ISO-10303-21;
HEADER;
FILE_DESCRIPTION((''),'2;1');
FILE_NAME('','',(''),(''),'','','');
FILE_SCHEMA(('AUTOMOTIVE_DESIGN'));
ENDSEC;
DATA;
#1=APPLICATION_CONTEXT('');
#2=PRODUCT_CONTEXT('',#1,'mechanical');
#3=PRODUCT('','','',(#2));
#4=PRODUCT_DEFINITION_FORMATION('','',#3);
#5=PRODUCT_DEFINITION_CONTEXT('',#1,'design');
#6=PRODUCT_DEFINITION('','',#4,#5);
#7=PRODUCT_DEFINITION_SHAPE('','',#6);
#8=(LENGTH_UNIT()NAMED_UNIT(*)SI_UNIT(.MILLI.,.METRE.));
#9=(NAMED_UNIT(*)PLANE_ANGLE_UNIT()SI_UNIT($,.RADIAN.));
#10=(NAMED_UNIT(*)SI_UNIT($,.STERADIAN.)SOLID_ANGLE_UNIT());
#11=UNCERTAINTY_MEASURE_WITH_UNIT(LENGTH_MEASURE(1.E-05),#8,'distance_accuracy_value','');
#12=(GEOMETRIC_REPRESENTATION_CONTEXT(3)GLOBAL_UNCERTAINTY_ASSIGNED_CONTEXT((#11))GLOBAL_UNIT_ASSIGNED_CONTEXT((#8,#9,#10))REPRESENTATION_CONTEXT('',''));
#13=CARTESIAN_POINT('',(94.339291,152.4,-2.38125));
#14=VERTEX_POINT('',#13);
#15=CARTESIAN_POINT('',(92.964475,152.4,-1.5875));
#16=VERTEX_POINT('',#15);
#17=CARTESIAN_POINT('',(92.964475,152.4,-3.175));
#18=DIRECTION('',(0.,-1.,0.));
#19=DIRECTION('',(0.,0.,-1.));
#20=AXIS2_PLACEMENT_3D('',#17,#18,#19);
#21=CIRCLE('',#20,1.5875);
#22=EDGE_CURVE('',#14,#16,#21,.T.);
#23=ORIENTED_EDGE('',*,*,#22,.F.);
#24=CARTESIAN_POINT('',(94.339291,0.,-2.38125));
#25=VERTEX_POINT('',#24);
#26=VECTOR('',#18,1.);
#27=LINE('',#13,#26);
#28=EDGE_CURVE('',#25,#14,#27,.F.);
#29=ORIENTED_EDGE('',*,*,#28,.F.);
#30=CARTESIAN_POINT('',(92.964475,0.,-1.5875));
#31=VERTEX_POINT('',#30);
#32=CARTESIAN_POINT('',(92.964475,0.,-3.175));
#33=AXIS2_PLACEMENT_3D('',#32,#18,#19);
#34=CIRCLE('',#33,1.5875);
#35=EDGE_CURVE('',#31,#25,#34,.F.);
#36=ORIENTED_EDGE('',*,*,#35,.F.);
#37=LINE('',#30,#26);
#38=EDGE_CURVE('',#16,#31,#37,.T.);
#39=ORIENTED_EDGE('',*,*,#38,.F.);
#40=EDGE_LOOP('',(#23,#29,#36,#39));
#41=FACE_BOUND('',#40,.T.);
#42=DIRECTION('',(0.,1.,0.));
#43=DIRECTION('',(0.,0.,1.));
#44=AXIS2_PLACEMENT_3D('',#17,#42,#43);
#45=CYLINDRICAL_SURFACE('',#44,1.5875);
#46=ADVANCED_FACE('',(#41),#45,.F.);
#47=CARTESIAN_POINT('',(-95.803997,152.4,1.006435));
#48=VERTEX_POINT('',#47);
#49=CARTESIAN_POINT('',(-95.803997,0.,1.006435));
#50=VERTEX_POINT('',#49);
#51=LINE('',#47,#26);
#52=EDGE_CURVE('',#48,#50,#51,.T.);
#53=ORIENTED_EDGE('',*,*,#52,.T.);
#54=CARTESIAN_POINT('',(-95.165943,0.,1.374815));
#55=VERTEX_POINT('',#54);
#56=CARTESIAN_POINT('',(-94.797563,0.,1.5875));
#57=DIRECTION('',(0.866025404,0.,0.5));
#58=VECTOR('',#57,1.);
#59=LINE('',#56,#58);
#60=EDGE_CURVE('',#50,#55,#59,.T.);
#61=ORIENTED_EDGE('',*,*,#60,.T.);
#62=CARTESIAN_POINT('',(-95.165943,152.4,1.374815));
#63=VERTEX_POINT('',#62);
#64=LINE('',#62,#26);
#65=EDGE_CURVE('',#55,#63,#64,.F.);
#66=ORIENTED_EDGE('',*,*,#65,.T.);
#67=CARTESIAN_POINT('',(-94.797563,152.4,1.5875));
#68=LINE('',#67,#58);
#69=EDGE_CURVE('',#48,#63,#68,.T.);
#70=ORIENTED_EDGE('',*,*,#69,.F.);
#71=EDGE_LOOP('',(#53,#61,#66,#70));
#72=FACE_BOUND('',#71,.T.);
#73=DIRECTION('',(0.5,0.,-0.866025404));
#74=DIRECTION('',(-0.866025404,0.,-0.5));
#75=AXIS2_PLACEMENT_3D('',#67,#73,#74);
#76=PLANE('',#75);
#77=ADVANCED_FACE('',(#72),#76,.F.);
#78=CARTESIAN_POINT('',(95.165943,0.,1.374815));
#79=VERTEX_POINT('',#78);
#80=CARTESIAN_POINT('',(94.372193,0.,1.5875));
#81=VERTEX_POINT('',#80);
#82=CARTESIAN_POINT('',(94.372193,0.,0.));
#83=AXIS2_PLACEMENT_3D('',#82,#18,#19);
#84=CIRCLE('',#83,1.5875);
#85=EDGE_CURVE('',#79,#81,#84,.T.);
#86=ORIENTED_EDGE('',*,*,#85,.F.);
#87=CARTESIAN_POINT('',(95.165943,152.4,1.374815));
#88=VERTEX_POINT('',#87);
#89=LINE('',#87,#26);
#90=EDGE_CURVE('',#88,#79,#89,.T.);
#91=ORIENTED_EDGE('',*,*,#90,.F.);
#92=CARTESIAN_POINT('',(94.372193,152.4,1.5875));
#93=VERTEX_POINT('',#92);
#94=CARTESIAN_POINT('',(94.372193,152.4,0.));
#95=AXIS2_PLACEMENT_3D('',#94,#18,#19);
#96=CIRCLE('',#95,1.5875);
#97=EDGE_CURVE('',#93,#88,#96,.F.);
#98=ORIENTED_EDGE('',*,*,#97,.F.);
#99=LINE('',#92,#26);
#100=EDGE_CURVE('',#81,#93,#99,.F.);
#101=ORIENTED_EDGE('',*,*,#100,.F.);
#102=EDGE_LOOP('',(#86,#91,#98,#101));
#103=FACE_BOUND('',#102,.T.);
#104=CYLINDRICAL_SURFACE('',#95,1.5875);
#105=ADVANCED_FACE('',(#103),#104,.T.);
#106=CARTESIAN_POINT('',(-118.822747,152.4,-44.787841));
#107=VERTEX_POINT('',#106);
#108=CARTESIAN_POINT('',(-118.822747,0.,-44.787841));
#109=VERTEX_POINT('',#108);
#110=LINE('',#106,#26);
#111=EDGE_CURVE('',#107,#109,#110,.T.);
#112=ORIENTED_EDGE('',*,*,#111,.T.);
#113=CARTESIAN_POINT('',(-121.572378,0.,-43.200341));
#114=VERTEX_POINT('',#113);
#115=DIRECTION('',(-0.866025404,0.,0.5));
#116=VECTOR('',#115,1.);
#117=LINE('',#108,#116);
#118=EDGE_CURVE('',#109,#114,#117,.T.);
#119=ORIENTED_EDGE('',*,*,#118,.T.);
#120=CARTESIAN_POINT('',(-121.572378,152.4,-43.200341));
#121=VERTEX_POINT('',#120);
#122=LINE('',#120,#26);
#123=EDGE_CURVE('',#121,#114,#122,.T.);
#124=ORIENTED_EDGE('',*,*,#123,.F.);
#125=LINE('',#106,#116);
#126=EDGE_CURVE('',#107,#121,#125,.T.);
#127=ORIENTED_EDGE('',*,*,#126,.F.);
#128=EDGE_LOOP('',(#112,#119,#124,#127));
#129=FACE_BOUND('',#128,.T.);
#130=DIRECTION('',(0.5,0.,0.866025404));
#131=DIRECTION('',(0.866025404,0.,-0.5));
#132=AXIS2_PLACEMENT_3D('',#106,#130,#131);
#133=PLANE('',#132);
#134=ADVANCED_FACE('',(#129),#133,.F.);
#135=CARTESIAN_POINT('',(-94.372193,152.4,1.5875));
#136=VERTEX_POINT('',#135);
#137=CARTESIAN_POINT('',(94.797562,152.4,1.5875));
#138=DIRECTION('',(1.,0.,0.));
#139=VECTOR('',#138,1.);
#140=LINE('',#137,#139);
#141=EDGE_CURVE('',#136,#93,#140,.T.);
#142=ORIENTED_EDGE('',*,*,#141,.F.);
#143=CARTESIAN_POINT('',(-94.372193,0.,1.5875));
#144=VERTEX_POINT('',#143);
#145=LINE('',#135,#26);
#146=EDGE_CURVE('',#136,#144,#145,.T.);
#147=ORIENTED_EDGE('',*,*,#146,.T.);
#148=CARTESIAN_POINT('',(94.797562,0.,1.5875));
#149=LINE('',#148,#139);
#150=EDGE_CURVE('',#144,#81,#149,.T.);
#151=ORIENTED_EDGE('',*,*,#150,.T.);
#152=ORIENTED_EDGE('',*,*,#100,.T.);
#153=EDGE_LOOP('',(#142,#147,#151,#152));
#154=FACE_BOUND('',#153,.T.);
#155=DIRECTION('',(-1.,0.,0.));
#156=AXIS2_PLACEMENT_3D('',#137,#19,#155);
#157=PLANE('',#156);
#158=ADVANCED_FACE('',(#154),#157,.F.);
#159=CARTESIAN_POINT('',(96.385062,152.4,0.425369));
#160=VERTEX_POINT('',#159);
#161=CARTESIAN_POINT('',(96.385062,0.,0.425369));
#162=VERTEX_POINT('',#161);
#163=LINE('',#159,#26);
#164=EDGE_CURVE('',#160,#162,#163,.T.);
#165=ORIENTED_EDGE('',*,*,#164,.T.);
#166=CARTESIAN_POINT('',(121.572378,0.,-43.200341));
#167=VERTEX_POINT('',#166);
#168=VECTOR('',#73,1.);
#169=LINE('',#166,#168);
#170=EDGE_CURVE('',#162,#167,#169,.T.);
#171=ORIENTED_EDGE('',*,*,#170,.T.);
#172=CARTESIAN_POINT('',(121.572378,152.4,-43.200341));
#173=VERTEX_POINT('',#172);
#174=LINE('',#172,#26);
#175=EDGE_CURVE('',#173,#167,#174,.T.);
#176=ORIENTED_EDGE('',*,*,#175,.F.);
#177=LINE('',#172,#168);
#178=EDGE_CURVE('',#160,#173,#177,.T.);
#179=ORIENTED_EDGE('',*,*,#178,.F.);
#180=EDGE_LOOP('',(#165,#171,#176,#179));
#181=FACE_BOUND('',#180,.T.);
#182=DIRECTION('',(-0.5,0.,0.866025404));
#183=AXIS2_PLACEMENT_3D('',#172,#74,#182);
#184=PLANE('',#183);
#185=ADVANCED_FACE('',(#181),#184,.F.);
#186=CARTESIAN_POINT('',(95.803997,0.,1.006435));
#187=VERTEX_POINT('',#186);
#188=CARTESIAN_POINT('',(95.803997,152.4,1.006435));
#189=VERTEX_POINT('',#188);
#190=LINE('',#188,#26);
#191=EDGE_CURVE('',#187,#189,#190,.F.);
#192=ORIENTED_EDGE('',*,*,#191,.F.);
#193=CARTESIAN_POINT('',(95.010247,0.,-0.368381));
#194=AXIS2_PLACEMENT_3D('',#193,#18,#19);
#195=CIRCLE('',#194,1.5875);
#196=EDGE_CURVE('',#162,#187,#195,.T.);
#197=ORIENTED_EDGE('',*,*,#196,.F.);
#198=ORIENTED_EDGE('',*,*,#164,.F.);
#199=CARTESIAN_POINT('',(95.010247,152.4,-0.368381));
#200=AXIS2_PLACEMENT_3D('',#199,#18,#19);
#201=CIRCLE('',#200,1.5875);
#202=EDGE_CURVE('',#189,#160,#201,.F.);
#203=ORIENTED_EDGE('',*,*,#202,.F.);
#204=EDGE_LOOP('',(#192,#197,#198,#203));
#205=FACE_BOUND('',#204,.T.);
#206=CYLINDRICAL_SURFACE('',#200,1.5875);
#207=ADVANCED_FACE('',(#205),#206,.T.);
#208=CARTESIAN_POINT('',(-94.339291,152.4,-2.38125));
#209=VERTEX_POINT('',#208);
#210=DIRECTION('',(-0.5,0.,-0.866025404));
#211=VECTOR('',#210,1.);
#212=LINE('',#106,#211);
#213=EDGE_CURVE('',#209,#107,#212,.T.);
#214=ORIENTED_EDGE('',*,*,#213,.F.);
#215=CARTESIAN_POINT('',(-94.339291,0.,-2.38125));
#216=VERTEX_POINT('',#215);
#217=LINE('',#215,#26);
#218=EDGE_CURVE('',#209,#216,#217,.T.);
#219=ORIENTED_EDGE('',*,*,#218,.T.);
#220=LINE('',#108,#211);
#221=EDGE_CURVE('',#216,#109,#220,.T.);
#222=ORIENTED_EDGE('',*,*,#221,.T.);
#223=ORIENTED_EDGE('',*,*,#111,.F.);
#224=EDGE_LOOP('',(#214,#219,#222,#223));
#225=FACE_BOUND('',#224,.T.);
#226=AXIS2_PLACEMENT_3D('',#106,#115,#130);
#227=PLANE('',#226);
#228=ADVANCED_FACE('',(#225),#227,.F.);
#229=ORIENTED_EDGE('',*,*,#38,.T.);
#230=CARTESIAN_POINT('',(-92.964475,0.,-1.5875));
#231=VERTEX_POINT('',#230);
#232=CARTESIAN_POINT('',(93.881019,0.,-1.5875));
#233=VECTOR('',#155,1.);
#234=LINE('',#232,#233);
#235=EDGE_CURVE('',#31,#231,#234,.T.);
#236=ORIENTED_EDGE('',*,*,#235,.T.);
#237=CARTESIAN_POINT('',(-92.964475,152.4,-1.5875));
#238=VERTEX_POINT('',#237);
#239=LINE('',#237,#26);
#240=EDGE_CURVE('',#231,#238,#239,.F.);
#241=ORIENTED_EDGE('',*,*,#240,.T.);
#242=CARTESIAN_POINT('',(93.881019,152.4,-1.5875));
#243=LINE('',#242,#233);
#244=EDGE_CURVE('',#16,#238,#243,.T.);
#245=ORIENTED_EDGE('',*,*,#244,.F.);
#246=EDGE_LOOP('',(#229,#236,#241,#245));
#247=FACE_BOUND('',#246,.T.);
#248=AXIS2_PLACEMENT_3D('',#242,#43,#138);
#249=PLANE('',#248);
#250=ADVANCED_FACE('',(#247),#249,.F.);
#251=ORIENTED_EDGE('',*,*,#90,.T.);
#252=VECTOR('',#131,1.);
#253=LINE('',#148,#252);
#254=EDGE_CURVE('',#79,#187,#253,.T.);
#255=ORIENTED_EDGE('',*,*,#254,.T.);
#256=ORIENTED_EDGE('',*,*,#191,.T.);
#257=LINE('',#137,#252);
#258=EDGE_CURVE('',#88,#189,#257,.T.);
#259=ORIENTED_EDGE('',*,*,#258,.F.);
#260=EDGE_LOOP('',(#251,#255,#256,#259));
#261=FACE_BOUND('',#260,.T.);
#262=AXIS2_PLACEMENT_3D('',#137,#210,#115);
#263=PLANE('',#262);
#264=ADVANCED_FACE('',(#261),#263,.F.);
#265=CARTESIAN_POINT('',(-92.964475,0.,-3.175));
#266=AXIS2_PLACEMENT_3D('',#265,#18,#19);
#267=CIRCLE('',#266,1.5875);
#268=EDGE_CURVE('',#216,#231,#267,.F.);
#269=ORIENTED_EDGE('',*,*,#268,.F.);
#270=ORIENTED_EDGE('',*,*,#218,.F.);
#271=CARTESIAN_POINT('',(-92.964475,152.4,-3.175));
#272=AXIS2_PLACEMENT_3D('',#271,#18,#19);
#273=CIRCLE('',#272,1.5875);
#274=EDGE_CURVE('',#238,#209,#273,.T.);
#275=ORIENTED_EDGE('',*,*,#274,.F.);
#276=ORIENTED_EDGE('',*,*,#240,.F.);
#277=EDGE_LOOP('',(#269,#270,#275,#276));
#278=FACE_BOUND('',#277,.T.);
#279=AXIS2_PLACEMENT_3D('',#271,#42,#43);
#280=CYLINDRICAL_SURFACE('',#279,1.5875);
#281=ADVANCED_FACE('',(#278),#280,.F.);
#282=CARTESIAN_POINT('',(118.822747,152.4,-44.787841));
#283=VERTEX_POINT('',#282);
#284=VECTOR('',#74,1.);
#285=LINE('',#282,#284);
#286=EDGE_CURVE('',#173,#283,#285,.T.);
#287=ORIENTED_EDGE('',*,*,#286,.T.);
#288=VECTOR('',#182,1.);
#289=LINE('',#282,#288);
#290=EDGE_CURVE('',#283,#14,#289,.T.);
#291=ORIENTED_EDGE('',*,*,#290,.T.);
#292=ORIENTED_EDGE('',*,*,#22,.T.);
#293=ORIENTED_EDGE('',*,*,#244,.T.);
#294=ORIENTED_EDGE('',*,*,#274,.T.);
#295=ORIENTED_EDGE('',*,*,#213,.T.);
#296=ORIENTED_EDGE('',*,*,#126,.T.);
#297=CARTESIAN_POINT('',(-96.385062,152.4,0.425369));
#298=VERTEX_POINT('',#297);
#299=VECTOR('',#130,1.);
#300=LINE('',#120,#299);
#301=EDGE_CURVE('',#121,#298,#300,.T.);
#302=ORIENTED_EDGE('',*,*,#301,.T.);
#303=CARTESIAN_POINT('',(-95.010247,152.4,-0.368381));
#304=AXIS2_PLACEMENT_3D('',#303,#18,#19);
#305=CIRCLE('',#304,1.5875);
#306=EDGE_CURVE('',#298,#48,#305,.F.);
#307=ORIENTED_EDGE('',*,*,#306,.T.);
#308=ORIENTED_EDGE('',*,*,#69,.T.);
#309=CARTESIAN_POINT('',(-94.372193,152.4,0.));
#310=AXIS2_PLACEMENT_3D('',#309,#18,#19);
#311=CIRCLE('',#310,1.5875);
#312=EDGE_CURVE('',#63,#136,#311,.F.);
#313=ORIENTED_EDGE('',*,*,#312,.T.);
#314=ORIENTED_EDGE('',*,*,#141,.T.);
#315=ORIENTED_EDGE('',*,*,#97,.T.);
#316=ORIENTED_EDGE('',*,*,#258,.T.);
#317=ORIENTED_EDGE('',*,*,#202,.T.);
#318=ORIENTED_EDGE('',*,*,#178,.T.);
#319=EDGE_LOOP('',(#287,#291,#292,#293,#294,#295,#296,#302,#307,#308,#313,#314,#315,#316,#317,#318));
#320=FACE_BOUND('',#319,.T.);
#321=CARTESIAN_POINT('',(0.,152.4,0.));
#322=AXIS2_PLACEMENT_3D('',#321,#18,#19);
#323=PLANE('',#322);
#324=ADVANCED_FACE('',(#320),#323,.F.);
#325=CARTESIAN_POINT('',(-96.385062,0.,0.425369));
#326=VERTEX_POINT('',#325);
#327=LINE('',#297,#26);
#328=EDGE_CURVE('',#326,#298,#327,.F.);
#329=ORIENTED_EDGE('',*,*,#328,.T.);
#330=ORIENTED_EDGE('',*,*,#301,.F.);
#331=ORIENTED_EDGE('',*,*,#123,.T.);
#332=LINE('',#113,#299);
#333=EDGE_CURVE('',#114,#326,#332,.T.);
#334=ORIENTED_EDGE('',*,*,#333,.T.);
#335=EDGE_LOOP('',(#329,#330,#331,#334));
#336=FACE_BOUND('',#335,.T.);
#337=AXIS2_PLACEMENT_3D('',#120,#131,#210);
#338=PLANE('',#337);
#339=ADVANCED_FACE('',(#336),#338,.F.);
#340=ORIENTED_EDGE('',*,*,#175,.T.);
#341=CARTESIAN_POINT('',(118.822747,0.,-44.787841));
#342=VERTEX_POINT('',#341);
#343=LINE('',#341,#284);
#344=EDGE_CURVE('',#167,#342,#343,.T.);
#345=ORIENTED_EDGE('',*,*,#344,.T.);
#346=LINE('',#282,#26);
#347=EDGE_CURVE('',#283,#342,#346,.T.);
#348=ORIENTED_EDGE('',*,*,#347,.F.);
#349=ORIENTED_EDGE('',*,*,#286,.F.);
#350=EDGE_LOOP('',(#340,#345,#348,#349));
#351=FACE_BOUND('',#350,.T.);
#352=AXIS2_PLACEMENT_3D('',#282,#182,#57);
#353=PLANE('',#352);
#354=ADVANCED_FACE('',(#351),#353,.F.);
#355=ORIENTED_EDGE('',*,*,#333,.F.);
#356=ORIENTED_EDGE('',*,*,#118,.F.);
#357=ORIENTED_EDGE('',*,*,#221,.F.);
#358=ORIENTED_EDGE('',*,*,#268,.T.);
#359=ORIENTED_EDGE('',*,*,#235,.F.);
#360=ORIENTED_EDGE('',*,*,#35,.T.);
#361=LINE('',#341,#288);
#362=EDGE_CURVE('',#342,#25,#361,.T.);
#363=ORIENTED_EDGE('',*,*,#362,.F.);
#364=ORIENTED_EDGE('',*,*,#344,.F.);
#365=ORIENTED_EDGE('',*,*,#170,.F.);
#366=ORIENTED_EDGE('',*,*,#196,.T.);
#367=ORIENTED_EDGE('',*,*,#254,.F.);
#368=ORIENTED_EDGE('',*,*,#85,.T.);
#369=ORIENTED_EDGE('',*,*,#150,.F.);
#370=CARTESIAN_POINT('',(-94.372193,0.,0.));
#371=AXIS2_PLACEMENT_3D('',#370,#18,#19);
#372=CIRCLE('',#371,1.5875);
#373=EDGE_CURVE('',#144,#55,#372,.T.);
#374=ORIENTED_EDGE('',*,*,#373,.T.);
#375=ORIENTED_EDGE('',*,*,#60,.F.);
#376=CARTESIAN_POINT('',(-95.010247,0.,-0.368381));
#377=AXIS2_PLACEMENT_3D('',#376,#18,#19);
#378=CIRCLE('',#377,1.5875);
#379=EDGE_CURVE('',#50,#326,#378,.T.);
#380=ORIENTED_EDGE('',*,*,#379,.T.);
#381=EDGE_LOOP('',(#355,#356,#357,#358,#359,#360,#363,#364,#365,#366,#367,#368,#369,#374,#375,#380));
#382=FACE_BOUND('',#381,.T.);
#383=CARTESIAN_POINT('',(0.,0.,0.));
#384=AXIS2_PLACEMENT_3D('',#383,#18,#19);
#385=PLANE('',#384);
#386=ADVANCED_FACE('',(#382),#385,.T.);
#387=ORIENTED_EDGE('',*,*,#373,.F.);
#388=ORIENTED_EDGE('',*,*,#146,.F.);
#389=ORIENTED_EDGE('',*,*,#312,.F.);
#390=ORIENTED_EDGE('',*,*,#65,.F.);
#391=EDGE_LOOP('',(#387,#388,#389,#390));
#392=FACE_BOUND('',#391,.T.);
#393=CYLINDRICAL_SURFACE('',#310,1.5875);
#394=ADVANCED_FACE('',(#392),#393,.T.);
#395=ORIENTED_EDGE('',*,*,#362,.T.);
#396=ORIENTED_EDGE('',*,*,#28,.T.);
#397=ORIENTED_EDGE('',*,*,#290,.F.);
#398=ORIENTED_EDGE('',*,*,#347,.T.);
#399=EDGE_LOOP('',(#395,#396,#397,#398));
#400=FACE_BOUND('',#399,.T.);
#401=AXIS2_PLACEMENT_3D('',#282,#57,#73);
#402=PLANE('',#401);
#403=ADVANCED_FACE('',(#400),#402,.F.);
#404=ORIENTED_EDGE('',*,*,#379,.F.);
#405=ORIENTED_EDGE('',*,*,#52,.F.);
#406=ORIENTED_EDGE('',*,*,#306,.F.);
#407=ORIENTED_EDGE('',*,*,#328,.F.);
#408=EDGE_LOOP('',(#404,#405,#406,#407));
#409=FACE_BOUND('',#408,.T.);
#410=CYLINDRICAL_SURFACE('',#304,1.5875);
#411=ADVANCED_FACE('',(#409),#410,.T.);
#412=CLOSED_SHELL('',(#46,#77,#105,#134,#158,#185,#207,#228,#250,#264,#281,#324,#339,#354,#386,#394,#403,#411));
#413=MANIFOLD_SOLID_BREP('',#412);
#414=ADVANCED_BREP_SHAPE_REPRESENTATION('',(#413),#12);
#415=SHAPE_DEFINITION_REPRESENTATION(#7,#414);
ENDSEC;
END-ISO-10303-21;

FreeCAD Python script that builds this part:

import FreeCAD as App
import Part
import Sketcher
from FreeCAD import Vector
Q = App.Units.Quantity


def edges_at(feature, points):
    """Names of the edges that pass closest to the given points."""
    edges = feature.Shape.Edges
    near = lambda p: min(range(len(edges)), key=lambda i: edges[i].distToShape(Part.Vertex(*p))[0])
    return sorted({f"Edge{near(p) + 1}" for p in points})

doc = App.newDocument("Part")
params = doc.addObject("Spreadsheet::Sheet", "Params")
for row, (alias, value) in enumerate([
    ("sketch1_length", "2 in"),
    ("sketch1_length2", "0.0625 in"),
    ("sketch1_length3", "0.125 in"),
    ("pad1_length", "6 in"),
    ("fillet_radius", "0.0625 in"),
], start=1):
    params.set(f"A{row}", alias)
    params.set(f"B{row}", "=" + value)
    params.setAlias(f"B{row}", alias)

body = doc.addObject("PartDesign::Body", "Body")

sketch1 = doc.addObject("Sketcher::SketchObject", "Sketch")
body.addObject(sketch1)
sketch1.AttachmentSupport = (doc.XZ_Plane, [""])
sketch1.MapMode = "FlatFace"
sketch1.addGeometry([
    Part.LineSegment(Vector(-94.797562, 1.5875, 0), Vector(94.797562, 1.5875, 0)),
    Part.LineSegment(Vector(94.797562, 1.5875, 0), Vector(96.172378, 0.79375, 0)),
    Part.LineSegment(Vector(96.172378, 0.79375, 0), Vector(121.572378, -43.200341, 0)),
    Part.LineSegment(Vector(121.572378, -43.200341, 0), Vector(118.822747, -44.787841, 0)),
    Part.LineSegment(Vector(118.822747, -44.787841, 0), Vector(93.881019, -1.5875, 0)),
    Part.LineSegment(Vector(93.881019, -1.5875, 0), Vector(-93.881019, -1.5875, 0)),
    Part.LineSegment(Vector(-93.881019, -1.5875, 0), Vector(-118.822747, -44.787841, 0)),
    Part.LineSegment(Vector(-118.822747, -44.787841, 0), Vector(-121.572378, -43.200341, 0)),
    Part.LineSegment(Vector(-121.572378, -43.200341, 0), Vector(-96.172378, 0.79375, 0)),
    Part.LineSegment(Vector(-96.172378, 0.79375, 0), Vector(-94.797562, 1.5875, 0)),
], False)
sketch1.addConstraint([
    Sketcher.Constraint("Coincident", 0, 2, 1, 1),
    Sketcher.Constraint("Coincident", 1, 2, 2, 1),
    Sketcher.Constraint("Coincident", 2, 2, 3, 1),
    Sketcher.Constraint("Coincident", 3, 2, 4, 1),
    Sketcher.Constraint("Coincident", 4, 2, 5, 1),
    Sketcher.Constraint("Coincident", 5, 2, 6, 1),
    Sketcher.Constraint("Coincident", 6, 2, 7, 1),
    Sketcher.Constraint("Coincident", 7, 2, 8, 1),
    Sketcher.Constraint("Coincident", 8, 2, 9, 1),
    Sketcher.Constraint("Coincident", 9, 2, 0, 1),
    Sketcher.Constraint("Horizontal", 0),
    Sketcher.Constraint("Horizontal", 5),
    Sketcher.Constraint("Symmetric", 3, 2, 6, 2, -2),
    Sketcher.Constraint("Symmetric", 2, 2, 7, 2, -2),
    Sketcher.Constraint("Symmetric", 1, 2, 8, 2, -2),
    Sketcher.Constraint("Perpendicular", 2, 3),
    Sketcher.Constraint("Perpendicular", 3, 4),
    Sketcher.Constraint("Perpendicular", 1, 6),
    Sketcher.Constraint("Perpendicular", 6, 7),
    Sketcher.Constraint("Perpendicular", 4, 9),
    Sketcher.Constraint("Distance", 2, Q("2 in")),
    Sketcher.Constraint("Angle", 1, Q("-30 deg")),
    Sketcher.Constraint("Distance", 1, Q("0.0625 in")),
    Sketcher.Constraint("Distance", 3, Q("0.125 in")),
    Sketcher.Constraint("DistanceY", -1, 1, 0, 2, Q("0.0625 in")),
    Sketcher.Constraint("DistanceY", 4, 2, -1, 1, Q("0.0625 in")),
    Sketcher.Constraint("DistanceX", 0, 1, 0, 2, Q("189.595125 mm")),
])
sketch1.setExpression("Constraints[20]", "Params.sketch1_length")
sketch1.setExpression("Constraints[22]", "Params.sketch1_length2")
sketch1.setExpression("Constraints[23]", "Params.sketch1_length3")
pad1 = doc.addObject("PartDesign::Pad", "Pad")
body.addObject(pad1)
pad1.Profile = sketch1
pad1.setExpression("Length", "Params.pad1_length")
pad1.Reversed = True
doc.recompute()

fillet = doc.addObject("PartDesign::Fillet", "Fillet")
body.addObject(fillet)
fillet.Base = (pad1, edges_at(pad1, [
    (94.798, 76.2, 1.587),
    (-94.798, 76.2, 1.587),
    (-96.172, 76.2, 0.794),
    (-93.881, 76.2, -1.587),
    (93.881, 76.2, -1.587),
    (96.172, 76.2, 0.794),
]))
fillet.setExpression("Radius", "Params.fillet_radius")

doc.recompute()
